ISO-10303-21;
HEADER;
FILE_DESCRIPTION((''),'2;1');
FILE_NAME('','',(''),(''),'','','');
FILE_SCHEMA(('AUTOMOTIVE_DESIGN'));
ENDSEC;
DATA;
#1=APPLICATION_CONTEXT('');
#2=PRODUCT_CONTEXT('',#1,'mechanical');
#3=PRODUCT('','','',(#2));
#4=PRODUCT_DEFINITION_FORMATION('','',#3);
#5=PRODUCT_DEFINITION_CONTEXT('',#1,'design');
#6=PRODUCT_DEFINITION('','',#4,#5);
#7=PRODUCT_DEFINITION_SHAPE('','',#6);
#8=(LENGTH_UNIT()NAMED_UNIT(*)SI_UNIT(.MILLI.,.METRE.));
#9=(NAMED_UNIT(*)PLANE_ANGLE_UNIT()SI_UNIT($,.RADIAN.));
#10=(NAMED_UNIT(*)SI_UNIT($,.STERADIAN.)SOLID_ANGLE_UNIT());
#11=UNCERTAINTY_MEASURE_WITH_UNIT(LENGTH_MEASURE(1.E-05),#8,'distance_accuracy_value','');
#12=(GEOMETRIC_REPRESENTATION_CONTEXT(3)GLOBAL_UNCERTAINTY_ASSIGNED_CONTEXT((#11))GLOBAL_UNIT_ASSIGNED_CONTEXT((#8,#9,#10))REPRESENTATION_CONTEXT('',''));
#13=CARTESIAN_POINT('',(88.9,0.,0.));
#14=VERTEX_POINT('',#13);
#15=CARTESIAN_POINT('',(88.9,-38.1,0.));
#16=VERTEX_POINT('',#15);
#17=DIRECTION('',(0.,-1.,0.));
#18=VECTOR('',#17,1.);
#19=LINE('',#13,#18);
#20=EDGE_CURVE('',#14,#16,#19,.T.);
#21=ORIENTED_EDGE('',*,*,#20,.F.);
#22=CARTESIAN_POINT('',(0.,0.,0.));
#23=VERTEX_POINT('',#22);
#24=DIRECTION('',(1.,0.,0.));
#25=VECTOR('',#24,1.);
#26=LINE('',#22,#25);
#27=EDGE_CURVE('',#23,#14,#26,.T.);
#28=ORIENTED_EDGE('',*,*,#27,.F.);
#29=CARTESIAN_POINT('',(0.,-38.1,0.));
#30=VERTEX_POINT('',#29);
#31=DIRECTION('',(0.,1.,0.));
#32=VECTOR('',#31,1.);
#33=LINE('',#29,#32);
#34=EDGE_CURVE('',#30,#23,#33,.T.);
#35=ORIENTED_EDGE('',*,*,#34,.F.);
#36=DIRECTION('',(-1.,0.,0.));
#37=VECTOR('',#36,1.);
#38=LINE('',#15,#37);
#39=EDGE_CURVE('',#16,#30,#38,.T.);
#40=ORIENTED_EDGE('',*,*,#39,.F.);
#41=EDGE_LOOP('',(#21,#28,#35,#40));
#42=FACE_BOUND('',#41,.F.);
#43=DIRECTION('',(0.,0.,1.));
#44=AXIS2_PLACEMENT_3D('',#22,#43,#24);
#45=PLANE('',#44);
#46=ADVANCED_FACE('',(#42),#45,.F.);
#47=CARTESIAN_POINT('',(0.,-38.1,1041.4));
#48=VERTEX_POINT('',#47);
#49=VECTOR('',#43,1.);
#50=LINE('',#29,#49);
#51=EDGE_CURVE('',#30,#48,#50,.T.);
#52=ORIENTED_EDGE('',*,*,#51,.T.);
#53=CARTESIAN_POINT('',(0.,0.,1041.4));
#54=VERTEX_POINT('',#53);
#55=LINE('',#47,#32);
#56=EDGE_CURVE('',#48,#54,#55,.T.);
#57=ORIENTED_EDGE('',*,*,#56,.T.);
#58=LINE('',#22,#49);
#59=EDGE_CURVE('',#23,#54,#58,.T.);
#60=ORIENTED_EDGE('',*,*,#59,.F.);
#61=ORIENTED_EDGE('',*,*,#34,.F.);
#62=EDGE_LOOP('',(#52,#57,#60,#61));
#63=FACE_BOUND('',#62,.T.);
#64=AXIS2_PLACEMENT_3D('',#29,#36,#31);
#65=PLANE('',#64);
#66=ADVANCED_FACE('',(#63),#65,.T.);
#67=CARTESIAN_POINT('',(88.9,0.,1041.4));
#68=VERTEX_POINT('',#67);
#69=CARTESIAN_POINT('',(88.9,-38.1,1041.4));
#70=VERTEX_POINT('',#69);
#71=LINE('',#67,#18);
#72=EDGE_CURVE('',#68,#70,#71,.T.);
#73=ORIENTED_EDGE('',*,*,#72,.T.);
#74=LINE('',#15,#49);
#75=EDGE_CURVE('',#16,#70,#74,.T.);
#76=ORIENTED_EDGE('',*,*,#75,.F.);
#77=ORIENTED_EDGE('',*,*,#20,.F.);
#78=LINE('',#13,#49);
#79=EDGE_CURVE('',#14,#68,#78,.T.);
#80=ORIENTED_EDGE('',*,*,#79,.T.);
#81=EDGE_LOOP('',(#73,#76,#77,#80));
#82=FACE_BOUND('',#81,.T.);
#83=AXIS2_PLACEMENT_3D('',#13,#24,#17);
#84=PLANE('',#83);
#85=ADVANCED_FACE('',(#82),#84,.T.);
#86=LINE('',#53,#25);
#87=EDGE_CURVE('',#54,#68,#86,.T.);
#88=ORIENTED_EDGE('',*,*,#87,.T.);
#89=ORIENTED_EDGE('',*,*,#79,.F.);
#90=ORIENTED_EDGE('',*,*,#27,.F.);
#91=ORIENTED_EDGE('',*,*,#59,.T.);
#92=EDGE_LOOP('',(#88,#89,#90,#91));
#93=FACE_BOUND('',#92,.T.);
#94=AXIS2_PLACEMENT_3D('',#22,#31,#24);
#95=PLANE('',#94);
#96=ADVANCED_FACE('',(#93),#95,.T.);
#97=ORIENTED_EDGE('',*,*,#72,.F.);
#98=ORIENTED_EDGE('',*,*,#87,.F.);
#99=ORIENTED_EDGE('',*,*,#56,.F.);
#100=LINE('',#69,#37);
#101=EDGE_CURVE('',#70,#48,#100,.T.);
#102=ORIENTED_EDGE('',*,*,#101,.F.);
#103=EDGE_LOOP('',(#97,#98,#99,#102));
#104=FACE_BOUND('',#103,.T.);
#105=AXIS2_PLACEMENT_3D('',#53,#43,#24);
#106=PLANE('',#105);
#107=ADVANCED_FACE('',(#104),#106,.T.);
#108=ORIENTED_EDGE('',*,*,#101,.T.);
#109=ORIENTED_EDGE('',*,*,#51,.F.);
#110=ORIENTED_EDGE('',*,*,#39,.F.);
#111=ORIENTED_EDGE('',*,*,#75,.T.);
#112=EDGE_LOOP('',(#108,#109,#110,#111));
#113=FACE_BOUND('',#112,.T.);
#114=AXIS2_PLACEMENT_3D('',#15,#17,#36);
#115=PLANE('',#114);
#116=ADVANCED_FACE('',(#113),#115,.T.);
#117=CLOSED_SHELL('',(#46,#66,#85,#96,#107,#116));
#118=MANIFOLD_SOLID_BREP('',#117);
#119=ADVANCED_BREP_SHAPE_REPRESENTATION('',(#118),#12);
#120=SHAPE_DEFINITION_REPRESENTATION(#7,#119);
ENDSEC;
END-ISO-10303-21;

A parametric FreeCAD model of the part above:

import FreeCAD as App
import Part
import Sketcher
Q = App.Units.Quantity


def add_polygon(sketch, points):
    """Adds a closed chain of lines whose ends are joined by coincident constraints."""
    first, n = sketch.GeometryCount, len(points)
    for a, b in zip(points, points[1:] + points[:1]):
        sketch.addGeometry(Part.LineSegment(App.Vector(*a, 0), App.Vector(*b, 0)), False)
    for i in range(n):
        sketch.addConstraint(Sketcher.Constraint("Coincident", first + i, 2, first + (i + 1) % n, 1))

doc = App.newDocument("Part")
body = doc.addObject("PartDesign::Body", "Body")

sketch1 = body.newObject("Sketcher::SketchObject", "Sketch")
sketch1.AttachmentSupport = (doc.getObject("XY_Plane"), [""])
sketch1.MapMode = "FlatFace"
add_polygon(sketch1, [(88.9, 0), (0, 0), (0, -38.1), (88.9, -38.1)])
sketch1.addConstraint([
    Sketcher.Constraint("Horizontal", 0),
    Sketcher.Constraint("Vertical", 1),
    Sketcher.Constraint("Horizontal", 2),
    Sketcher.Constraint("Vertical", 3),
    Sketcher.Constraint("Coincident", 0, 2, -1, 1),
    Sketcher.Constraint("DistanceX", 0, 2, 0, 1, Q("3.5 in")),
    Sketcher.Constraint("DistanceY", 1, 2, 1, 1, Q("1.5 in")),
])
pad1 = body.newObject("PartDesign::Pad", "Pad")
pad1.Profile = sketch1
pad1.Length = Q("41 in")

doc.recompute()
